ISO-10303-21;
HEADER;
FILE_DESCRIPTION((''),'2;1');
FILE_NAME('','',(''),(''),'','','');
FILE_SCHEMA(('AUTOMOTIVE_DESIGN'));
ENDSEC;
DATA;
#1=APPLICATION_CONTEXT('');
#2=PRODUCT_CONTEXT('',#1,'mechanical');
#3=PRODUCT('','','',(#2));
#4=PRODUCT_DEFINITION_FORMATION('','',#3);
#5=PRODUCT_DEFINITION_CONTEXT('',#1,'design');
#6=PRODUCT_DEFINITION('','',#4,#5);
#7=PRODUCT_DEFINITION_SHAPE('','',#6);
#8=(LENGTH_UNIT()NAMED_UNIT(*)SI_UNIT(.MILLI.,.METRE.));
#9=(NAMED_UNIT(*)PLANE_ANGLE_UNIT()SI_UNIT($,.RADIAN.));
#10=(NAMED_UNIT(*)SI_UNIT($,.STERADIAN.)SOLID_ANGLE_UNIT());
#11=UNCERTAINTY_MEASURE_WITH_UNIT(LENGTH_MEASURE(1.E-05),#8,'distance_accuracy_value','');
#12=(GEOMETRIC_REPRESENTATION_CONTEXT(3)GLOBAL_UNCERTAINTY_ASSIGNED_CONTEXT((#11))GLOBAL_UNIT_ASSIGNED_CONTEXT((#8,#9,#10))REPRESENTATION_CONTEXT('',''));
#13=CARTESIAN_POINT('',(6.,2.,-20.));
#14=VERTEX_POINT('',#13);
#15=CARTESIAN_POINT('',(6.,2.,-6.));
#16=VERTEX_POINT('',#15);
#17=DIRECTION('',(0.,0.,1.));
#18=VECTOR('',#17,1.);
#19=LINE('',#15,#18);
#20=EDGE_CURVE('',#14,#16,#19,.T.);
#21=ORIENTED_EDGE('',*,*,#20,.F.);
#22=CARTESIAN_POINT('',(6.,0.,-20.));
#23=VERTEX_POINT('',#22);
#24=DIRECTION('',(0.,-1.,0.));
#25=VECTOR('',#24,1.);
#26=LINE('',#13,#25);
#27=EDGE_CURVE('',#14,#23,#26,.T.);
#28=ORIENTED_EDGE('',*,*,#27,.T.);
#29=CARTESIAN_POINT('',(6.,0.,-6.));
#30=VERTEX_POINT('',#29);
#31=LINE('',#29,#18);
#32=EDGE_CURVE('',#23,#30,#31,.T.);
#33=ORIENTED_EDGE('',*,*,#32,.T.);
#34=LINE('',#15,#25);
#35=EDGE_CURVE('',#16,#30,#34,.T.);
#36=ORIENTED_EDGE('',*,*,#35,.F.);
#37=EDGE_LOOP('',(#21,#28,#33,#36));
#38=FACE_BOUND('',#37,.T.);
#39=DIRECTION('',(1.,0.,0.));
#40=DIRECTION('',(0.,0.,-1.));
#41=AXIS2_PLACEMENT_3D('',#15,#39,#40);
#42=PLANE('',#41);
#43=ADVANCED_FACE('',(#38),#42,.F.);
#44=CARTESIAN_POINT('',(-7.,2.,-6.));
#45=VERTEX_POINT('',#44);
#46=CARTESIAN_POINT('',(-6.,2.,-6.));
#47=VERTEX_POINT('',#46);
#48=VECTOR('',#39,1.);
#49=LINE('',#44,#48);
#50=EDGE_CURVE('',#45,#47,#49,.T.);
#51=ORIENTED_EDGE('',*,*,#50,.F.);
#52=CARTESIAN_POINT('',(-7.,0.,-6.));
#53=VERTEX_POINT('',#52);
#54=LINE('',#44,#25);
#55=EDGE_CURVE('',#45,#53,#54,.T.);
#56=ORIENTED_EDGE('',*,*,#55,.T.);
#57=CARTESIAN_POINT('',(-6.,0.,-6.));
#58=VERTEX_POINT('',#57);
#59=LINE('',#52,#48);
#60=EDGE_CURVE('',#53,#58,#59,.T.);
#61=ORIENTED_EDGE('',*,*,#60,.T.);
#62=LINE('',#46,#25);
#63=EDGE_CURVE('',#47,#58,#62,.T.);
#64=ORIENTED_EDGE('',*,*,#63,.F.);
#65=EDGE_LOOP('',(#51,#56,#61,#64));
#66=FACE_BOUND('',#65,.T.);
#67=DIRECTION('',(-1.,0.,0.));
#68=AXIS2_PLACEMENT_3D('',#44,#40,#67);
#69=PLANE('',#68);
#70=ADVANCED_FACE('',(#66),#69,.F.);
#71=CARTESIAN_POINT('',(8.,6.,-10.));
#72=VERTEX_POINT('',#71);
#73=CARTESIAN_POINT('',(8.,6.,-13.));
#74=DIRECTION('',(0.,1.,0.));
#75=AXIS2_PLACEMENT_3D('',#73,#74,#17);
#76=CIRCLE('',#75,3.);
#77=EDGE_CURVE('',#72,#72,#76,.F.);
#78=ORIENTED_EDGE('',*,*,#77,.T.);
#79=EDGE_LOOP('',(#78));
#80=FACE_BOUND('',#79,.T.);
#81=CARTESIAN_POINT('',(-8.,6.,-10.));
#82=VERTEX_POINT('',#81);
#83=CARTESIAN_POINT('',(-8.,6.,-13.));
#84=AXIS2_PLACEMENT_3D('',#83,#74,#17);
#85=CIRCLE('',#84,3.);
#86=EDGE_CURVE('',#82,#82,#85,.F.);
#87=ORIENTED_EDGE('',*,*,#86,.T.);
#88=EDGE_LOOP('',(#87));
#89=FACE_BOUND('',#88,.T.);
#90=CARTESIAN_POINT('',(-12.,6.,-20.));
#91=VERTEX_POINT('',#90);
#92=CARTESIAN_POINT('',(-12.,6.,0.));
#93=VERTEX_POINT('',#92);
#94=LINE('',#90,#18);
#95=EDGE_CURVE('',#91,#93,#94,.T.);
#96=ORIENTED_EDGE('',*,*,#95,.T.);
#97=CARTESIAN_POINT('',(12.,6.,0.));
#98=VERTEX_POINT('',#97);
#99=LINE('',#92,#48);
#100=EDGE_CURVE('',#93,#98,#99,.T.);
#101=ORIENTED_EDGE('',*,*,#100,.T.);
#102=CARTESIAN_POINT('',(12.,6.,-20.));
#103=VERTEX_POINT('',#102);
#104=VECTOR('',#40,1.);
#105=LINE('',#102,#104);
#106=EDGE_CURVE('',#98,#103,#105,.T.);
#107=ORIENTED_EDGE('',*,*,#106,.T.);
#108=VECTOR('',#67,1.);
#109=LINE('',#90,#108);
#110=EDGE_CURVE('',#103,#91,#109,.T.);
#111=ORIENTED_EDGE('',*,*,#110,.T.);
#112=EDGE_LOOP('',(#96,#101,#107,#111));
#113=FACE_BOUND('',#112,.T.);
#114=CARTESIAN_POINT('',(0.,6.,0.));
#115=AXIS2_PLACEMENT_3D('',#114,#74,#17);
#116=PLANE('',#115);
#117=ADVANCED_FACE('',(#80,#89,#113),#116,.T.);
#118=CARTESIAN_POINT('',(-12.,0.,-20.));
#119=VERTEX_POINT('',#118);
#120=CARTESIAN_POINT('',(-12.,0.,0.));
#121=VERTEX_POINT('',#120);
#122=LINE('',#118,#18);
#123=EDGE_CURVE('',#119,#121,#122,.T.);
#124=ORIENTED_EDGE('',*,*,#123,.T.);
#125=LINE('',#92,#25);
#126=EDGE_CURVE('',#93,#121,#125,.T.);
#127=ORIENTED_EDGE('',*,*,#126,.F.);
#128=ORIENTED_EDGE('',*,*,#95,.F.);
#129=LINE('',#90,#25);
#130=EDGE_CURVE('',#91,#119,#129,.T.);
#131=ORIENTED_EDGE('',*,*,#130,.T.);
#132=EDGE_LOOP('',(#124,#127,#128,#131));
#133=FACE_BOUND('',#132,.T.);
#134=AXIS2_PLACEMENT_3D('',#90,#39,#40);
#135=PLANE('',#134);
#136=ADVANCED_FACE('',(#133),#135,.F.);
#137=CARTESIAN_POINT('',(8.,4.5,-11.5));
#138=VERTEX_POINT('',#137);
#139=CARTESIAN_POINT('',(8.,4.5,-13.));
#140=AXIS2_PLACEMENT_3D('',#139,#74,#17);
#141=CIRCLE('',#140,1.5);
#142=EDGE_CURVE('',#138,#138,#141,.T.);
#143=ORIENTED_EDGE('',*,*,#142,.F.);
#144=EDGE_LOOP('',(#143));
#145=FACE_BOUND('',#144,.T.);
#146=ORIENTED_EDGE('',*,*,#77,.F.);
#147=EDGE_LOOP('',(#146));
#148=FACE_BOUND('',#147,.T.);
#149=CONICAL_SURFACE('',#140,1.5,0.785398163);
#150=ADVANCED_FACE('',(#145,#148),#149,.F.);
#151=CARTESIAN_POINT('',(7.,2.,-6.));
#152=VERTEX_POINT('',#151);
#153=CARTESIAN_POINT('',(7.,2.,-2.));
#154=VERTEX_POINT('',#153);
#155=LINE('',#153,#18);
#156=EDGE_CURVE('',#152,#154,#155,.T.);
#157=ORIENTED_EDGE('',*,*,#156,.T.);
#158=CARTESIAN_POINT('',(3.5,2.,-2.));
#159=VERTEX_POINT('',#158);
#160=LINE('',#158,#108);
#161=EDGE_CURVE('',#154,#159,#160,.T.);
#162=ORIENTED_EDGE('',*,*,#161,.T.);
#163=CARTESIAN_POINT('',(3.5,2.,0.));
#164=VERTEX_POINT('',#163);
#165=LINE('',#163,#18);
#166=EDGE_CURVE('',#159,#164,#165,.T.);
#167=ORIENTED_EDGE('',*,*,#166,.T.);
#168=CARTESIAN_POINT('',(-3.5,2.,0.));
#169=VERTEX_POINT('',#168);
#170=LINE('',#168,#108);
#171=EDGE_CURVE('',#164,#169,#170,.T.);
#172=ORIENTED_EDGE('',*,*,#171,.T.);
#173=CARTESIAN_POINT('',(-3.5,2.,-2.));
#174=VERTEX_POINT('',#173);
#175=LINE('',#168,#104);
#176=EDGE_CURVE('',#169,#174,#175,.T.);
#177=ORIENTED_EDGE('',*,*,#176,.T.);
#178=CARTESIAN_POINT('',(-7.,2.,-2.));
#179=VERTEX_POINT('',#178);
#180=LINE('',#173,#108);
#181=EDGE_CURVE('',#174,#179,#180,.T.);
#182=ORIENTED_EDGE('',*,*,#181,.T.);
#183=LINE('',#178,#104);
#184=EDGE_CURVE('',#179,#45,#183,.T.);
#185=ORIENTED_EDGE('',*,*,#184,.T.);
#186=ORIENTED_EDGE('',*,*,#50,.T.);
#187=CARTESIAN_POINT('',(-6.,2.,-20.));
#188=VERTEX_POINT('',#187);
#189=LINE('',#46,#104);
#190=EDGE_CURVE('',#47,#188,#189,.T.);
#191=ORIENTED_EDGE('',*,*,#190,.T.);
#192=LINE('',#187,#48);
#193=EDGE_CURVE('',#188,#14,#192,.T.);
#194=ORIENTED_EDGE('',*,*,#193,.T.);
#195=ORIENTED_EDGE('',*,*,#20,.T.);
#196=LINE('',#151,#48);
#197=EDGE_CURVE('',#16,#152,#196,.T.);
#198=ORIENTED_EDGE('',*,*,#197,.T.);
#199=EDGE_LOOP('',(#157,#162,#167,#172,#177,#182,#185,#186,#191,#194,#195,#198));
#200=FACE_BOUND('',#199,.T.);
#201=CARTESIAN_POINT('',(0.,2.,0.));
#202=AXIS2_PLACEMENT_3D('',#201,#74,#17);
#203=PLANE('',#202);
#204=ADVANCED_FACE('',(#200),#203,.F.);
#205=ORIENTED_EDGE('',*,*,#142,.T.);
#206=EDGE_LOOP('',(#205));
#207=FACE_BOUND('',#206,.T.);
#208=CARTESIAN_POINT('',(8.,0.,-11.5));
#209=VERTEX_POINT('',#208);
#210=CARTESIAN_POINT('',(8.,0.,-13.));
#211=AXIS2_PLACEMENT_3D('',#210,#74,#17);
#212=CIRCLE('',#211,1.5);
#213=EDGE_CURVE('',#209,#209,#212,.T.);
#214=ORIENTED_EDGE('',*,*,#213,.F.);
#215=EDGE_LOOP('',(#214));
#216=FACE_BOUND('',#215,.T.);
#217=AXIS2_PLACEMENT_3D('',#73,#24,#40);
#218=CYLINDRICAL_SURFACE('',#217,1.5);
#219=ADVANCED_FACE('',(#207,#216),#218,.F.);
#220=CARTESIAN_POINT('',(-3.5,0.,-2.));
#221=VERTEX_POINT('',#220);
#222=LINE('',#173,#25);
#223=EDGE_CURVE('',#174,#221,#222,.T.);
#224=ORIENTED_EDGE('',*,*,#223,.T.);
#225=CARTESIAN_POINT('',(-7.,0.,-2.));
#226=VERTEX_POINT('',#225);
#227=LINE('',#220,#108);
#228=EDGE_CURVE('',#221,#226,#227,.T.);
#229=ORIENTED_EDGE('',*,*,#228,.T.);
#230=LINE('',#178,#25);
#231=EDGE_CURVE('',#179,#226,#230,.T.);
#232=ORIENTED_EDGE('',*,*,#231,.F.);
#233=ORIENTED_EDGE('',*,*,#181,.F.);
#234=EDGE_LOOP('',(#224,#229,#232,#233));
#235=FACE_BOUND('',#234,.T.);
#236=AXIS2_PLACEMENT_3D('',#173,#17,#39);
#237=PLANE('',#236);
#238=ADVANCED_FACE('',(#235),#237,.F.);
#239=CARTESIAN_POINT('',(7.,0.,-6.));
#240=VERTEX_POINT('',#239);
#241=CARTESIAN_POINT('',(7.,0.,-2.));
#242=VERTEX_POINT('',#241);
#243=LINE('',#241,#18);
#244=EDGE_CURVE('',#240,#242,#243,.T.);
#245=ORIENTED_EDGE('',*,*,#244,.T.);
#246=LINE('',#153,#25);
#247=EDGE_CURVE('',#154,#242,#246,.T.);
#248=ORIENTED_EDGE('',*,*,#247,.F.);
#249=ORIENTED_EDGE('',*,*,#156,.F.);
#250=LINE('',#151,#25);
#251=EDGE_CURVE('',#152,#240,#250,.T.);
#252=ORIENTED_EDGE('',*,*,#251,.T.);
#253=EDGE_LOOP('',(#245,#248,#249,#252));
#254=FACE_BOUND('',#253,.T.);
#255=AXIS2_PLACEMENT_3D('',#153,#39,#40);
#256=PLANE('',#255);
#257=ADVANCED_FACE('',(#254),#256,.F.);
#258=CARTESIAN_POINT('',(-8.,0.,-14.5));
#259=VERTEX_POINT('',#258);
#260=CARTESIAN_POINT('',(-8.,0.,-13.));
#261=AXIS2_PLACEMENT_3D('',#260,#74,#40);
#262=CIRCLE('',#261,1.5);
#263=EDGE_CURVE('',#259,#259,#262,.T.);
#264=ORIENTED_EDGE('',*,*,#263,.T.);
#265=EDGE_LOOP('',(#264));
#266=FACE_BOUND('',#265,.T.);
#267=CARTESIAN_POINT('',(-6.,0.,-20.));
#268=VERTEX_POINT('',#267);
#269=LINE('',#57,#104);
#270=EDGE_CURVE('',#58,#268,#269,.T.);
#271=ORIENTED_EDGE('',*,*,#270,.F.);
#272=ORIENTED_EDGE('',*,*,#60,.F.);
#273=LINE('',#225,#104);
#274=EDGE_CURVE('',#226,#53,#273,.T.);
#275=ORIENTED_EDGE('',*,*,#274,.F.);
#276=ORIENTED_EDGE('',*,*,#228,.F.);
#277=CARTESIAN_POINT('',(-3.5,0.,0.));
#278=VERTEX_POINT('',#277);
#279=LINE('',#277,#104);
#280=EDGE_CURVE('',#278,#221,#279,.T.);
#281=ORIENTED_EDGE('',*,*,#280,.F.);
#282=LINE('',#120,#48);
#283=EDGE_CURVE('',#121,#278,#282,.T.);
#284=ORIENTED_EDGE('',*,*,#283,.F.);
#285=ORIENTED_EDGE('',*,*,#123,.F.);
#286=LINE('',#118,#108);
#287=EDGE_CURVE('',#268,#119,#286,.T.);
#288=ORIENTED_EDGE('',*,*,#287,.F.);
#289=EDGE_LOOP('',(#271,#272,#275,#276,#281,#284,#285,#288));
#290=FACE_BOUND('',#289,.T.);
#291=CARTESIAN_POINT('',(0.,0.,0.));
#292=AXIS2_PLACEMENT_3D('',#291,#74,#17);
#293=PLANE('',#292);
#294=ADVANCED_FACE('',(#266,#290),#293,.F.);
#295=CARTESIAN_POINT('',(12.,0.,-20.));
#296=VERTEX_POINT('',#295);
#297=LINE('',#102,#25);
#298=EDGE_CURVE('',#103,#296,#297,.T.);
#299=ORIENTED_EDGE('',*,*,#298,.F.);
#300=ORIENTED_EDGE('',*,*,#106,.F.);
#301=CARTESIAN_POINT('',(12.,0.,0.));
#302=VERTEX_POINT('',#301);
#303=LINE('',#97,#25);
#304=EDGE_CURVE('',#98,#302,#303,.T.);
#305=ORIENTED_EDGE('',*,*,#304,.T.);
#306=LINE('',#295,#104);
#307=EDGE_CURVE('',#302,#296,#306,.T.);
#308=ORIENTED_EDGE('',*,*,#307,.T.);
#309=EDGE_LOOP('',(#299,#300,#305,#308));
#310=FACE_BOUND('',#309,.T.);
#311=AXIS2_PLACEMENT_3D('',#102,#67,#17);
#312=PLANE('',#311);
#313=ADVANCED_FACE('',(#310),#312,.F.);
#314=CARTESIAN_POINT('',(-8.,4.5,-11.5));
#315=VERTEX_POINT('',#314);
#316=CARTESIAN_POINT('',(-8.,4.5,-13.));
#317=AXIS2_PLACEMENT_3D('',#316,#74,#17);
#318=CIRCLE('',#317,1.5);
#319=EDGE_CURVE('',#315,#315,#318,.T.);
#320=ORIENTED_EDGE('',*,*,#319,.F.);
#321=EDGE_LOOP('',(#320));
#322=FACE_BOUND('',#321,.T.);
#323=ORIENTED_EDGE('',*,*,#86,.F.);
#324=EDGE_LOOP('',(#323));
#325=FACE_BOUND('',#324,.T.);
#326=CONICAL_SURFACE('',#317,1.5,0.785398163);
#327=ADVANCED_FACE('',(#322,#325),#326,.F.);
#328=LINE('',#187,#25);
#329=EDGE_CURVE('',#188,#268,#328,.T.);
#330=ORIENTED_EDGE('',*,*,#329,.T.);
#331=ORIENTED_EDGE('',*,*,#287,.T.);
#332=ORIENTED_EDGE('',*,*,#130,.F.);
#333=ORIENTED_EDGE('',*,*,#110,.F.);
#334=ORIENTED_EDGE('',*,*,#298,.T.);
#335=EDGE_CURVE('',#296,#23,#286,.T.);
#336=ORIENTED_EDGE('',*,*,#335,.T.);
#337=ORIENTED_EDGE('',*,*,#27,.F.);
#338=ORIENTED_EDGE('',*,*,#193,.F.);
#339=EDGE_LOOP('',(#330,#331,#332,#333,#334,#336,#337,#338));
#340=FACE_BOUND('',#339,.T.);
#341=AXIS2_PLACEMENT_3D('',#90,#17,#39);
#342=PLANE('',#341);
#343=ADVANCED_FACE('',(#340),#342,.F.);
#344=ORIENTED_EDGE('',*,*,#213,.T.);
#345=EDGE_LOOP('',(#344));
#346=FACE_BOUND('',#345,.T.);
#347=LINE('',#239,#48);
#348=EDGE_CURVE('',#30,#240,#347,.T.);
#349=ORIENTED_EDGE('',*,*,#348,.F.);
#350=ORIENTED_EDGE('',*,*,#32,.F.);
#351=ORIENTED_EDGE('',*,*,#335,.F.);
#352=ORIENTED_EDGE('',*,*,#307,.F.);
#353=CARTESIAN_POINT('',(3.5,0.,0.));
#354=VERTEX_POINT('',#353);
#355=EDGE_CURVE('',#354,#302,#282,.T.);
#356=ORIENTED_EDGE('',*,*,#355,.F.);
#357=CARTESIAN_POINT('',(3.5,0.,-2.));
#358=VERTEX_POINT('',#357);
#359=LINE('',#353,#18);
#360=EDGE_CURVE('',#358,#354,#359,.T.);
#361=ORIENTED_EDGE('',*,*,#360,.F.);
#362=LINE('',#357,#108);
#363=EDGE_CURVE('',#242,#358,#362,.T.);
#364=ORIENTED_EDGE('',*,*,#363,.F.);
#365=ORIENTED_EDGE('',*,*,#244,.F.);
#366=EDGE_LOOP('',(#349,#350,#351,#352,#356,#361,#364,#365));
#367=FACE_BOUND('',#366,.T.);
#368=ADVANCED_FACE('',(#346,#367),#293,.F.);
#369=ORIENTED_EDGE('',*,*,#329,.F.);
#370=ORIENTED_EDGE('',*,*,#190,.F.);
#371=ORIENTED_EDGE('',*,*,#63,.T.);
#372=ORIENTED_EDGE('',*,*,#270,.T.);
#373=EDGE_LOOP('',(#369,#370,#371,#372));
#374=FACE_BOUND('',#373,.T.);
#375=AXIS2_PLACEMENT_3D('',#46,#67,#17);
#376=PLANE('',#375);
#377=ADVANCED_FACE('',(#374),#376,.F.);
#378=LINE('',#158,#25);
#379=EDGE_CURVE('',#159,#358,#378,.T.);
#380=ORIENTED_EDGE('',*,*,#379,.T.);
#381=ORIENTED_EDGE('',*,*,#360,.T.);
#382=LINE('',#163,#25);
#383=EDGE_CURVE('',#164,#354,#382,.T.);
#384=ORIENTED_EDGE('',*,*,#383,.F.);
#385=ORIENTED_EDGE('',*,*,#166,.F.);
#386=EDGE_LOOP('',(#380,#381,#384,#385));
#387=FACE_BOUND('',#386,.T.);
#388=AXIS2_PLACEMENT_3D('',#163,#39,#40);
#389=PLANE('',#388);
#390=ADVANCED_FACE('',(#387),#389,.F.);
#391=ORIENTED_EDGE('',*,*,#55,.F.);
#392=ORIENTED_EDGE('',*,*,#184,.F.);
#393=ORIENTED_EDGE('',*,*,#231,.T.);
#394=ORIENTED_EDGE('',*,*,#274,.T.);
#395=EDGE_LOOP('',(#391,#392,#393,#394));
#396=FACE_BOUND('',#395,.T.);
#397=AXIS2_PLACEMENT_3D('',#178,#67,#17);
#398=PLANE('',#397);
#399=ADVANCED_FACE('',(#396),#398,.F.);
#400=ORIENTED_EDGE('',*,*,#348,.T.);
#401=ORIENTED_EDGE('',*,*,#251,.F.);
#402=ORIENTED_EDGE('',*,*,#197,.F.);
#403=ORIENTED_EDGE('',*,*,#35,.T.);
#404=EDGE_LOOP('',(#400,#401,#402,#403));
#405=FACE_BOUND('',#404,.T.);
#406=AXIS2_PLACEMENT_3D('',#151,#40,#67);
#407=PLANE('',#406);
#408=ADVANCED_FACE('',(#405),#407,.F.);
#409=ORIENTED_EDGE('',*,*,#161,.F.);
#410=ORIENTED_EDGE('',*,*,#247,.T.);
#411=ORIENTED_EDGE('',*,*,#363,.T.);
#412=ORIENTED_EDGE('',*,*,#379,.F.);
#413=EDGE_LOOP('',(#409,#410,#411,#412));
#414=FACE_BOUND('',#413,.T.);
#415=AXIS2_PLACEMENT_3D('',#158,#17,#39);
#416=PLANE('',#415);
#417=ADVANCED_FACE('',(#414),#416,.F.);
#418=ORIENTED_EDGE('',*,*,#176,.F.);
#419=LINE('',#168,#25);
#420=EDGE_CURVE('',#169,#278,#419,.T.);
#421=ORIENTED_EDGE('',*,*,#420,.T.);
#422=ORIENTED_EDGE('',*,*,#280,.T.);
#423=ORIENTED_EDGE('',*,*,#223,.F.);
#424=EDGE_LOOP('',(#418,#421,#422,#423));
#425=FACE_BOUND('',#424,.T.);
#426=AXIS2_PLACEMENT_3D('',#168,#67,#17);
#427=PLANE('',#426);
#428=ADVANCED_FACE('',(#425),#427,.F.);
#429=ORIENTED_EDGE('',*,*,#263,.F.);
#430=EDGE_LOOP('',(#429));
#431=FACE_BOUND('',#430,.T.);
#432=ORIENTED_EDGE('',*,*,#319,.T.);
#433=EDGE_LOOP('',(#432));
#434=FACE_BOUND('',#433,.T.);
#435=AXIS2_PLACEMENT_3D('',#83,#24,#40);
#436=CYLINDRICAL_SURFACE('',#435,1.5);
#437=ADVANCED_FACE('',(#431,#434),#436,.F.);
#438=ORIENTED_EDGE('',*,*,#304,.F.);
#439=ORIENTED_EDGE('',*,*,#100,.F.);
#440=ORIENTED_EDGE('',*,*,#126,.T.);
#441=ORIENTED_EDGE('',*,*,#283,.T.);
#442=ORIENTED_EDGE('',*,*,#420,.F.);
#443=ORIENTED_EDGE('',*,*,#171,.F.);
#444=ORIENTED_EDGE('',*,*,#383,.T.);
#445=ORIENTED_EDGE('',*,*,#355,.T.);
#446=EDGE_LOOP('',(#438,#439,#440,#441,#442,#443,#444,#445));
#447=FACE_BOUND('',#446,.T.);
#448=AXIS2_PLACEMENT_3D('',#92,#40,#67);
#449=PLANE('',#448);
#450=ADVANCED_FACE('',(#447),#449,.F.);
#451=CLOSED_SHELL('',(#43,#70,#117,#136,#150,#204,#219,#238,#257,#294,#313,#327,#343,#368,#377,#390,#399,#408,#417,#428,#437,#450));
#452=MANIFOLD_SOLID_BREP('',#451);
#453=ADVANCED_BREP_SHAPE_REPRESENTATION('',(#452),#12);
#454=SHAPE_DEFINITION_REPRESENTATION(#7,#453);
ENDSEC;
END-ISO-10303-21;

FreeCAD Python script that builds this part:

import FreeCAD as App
import Part
import Sketcher
from FreeCAD import Vector
Q = App.Units.Quantity


def edges_at(feature, points):
    """Names of the edges that pass closest to the given points."""
    edges = feature.Shape.Edges
    near = lambda p: min(range(len(edges)), key=lambda i: edges[i].distToShape(Part.Vertex(*p))[0])
    return sorted({f"Edge{near(p) + 1}" for p in points})


def add_polygon(sketch, points):
    """Adds a closed chain of lines whose ends are joined by coincident constraints."""
    first, n = sketch.GeometryCount, len(points)
    for a, b in zip(points, points[1:] + points[:1]):
        sketch.addGeometry(Part.LineSegment(App.Vector(*a, 0), App.Vector(*b, 0)), False)
    for i in range(n):
        sketch.addConstraint(Sketcher.Constraint("Coincident", first + i, 2, first + (i + 1) % n, 1))

doc = App.newDocument("Part")
body = doc.addObject("PartDesign::Body", "Body")

# Sketch on XZ plane
sketch1 = body.newObject("Sketcher::SketchObject", "Sketch")
sketch1.AttachmentSupport = (doc.getObject("XZ_Plane"), [""])
sketch1.MapMode = "FlatFace"
add_polygon(sketch1, [(-12, -20), (-12, 0), (12, 0), (12, -20)])  # lines 0-3
sketch1.addGeometry(Part.Circle(Vector(-8, -13, 0), Vector(0, 0, 1), 1.5), False)  # 4
sketch1.addGeometry(Part.Circle(Vector(8, -13, 0), Vector(0, 0, 1), 1.5), False)  # 5
sketch1.addConstraint([
    Sketcher.Constraint("Vertical", 0),
    Sketcher.Constraint("Horizontal", 1),
    Sketcher.Constraint("Vertical", 2),
    Sketcher.Constraint("Horizontal", 3),
    Sketcher.Constraint("Equal", 4, 5),
    Sketcher.Constraint("Symmetric", 0, 2, 1, 2, -1, 1),
    Sketcher.Constraint("Symmetric", 4, 3, 5, 3, -2),
    Sketcher.Constraint("Diameter", 4, Q("3 mm")),
    Sketcher.Constraint("DistanceX", 1, 1, 1, 2, Q("24 mm")),
    Sketcher.Constraint("DistanceY", 0, 1, 0, 2, Q("20 mm")),
    Sketcher.Constraint("DistanceX", 4, 3, -1, 1, Q("8 mm")),
    Sketcher.Constraint("DistanceY", 4, 3, -1, 1, Q("13 mm")),
])
pad1 = body.newObject("PartDesign::Pad", "Pad")
pad1.Profile = sketch1
pad1.Length = 6
pad1.Reversed = True

# Sketch on XZ plane
sketch2 = body.newObject("Sketcher::SketchObject", "Sketch001")
sketch2.AttachmentSupport = (doc.getObject("XZ_Plane"), [""])
sketch2.MapMode = "FlatFace"
add_polygon(sketch2, [(3.5, -2), (3.5, 0), (-3.5, 0), (-3.5, -2), (-7, -2), (-7, -6), (-6, -6), (-6, -20), (6, -20), (6, -6), (7, -6), (7, -2)])  # lines 0-11
sketch2.addConstraint([
    Sketcher.Constraint("Vertical", 0),
    Sketcher.Constraint("Horizontal", 1),
    Sketcher.Constraint("Vertical", 2),
    Sketcher.Constraint("Horizontal", 3),
    Sketcher.Constraint("Vertical", 4),
    Sketcher.Constraint("Horizontal", 5),
    Sketcher.Constraint("Vertical", 6),
    Sketcher.Constraint("Horizontal", 7),
    Sketcher.Constraint("Vertical", 8),
    Sketcher.Constraint("Horizontal", 9),
    Sketcher.Constraint("Vertical", 10),
    Sketcher.Constraint("Horizontal", 11),
    Sketcher.Constraint("Symmetric", 0, 2, 1, 2, -1, 1),
    Sketcher.Constraint("Symmetric", 5, 2, 8, 2, -2),
    Sketcher.Constraint("Symmetric", 3, 2, 10, 2, -2),
    Sketcher.Constraint("DistanceX", 1, 2, 1, 1, Q("7 mm")),
    Sketcher.Constraint("DistanceX", 5, 1, 5, 2, Q("1 mm")),
    Sketcher.Constraint("DistanceX", 7, 1, 7, 2, Q("12 mm")),
    Sketcher.Constraint("DistanceY", 0, 1, 0, 2, Q("2 mm")),
    Sketcher.Constraint("DistanceY", 4, 2, 4, 1, Q("4 mm")),
    Sketcher.Constraint("DistanceY", 6, 2, 6, 1, Q("14 mm")),
])
pocket1 = body.newObject("PartDesign::Pocket", "Pocket")
pocket1.Profile = sketch2
pocket1.Length = 2
doc.recompute()

chamfer = body.newObject("PartDesign::Chamfer", "Chamfer")
chamfer.Base = (pocket1, edges_at(pocket1, [(8, 6, -14.5), (-8, 6, -11.5)]))
chamfer.Size = 1.5

doc.recompute()
